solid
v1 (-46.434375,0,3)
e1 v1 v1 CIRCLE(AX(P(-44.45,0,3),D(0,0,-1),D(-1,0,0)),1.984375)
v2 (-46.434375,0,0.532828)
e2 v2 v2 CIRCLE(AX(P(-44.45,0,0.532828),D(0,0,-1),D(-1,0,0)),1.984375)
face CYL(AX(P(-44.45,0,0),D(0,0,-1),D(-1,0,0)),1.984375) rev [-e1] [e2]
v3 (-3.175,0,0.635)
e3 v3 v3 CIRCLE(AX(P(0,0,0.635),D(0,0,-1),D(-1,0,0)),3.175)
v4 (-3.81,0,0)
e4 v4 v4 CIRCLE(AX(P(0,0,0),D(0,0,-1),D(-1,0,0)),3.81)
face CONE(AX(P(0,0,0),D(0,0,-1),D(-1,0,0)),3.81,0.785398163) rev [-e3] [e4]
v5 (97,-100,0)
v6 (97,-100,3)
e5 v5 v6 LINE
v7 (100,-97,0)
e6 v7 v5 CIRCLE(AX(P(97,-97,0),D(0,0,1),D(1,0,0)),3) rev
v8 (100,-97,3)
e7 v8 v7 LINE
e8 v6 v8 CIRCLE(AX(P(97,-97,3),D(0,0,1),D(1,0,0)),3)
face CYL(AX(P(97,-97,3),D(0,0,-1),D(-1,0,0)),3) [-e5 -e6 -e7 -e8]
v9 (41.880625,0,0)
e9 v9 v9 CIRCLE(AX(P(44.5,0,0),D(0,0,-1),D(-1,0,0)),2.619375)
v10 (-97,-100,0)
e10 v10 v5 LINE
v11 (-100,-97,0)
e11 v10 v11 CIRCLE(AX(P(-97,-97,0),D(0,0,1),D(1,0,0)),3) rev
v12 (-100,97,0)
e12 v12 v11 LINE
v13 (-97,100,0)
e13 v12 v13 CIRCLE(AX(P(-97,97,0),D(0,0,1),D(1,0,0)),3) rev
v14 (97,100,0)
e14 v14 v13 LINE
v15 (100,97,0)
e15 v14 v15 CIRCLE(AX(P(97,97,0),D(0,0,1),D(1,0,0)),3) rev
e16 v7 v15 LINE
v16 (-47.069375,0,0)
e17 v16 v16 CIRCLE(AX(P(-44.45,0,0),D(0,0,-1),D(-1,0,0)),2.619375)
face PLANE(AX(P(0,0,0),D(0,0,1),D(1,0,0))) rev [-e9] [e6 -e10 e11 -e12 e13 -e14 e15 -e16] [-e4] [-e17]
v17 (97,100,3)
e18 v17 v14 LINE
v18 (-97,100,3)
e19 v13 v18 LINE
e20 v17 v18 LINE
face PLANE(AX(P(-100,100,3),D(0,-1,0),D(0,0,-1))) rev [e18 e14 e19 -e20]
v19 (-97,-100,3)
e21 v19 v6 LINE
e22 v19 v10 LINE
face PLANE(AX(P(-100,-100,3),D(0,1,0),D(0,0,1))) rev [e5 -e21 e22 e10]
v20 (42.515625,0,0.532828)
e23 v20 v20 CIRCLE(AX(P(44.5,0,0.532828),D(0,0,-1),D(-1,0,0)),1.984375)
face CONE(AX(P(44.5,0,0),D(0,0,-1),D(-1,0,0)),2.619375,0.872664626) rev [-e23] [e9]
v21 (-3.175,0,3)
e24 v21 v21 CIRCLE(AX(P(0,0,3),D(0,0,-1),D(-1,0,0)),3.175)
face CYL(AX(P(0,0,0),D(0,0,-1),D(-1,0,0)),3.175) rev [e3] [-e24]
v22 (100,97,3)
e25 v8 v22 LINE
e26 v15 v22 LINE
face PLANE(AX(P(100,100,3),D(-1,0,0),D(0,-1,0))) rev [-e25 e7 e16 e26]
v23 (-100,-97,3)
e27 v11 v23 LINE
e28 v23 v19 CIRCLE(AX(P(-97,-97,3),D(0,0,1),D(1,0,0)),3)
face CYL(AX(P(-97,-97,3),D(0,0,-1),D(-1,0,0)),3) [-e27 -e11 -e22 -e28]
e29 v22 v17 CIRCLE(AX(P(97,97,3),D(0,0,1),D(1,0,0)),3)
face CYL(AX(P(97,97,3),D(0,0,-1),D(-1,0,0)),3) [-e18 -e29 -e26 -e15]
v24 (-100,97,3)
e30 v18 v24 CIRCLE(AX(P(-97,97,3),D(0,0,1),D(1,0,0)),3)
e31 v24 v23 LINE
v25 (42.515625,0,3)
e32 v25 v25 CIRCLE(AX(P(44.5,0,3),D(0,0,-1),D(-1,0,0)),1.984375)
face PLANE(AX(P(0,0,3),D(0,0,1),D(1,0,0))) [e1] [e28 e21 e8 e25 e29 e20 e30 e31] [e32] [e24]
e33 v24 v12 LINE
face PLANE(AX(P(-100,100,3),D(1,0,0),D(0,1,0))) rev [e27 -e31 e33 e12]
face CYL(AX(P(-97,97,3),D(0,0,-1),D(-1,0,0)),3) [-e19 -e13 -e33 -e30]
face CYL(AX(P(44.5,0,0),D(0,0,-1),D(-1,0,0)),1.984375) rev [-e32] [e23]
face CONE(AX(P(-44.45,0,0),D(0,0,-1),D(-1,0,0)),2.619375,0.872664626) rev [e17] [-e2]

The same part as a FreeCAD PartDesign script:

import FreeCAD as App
import Part
import Sketcher
Q = App.Units.Quantity


def edges_at(feature, points):
    """Names of the edges that pass closest to the given points."""
    edges = feature.Shape.Edges
    near = lambda p: min(range(len(edges)), key=lambda i: edges[i].distToShape(Part.Vertex(*p))[0])
    return sorted({f"Edge{near(p) + 1}" for p in points})


def add_polygon(sketch, points):
    """Adds a closed chain of lines whose ends are joined by coincident constraints."""
    first, n = sketch.GeometryCount, len(points)
    for a, b in zip(points, points[1:] + points[:1]):
        sketch.addGeometry(Part.LineSegment(App.Vector(*a, 0), App.Vector(*b, 0)), False)
    for i in range(n):
        sketch.addConstraint(Sketcher.Constraint("Coincident", first + i, 2, first + (i + 1) % n, 1))

doc = App.newDocument("Part")
body = doc.addObject("PartDesign::Body", "Body")

# Sketch on XY plane
sketch1 = doc.addObject("Sketcher::SketchObject", "Sketch")
body.addObject(sketch1)
sketch1.AttachmentSupport = (doc.XY_Plane, [""])
sketch1.MapMode = "FlatFace"
add_polygon(sketch1, [(-100, 100), (-100, -100), (100, -100), (100, 100)])  # lines 0-3
sketch1.addConstraint(Sketcher.Constraint("Vertical", 0))
sketch1.addConstraint(Sketcher.Constraint("Horizontal", 1))
sketch1.addConstraint(Sketcher.Constraint("Vertical", 2))
sketch1.addConstraint(Sketcher.Constraint("Horizontal", 3))
sketch1.addConstraint(Sketcher.Constraint("Symmetric", 0, 2, 2, 2, -1, 1))
sketch1.addConstraint(Sketcher.Constraint("Equal", 3, 0))
sketch1.addConstraint(Sketcher.Constraint("DistanceX", 1, 1, 1, 2, Q("200 mm")))
pad1 = doc.addObject("PartDesign::Pad", "Pad")
body.addObject(pad1)
pad1.Profile = sketch1
pad1.Length = 3
doc.recompute()

fillet = doc.addObject("PartDesign::Fillet", "Fillet")
body.addObject(fillet)
fillet.Base = (pad1, edges_at(pad1, [
    (100, -100, 1.5),
    (-100, -100, 1.5),
    (-100, 100, 1.5),
    (100, 100, 1.5),
]))
fillet.Radius = 3

# Sketch on YZ plane
sketch2 = doc.addObject("Sketcher::SketchObject", "Sketch001")
body.addObject(sketch2)
sketch2.AttachmentSupport = (doc.YZ_Plane, [""])
sketch2.MapMode = "FlatFace"
add_polygon(sketch2, [(0, 3), (0, 0), (3.8, 0), (3.2, 0.6), (3.2, 3)])  # lines 0-4
sketch2.addConstraint(Sketcher.Constraint("Vertical", 0))
sketch2.addConstraint(Sketcher.Constraint("Horizontal", 1))
sketch2.addConstraint(Sketcher.Constraint("Vertical", 3))
sketch2.addConstraint(Sketcher.Constraint("Horizontal", 4))
sketch2.addConstraint(Sketcher.Constraint("Coincident", 0, 2, -1, 1))
sketch2.addConstraint(Sketcher.Constraint("Angle", 2, Q("135 deg")))
sketch2.addConstraint(Sketcher.Constraint("DistanceX", 1, 1, 1, 2, Q("0.15 in")))
sketch2.addConstraint(Sketcher.Constraint("DistanceX", 4, 2, 4, 1, Q("0.125 in")))
sketch2.addConstraint(Sketcher.Constraint("DistanceY", 0, 2, 0, 1, Q("3 mm")))
groove = doc.addObject("PartDesign::Groove", "Groove")
body.addObject(groove)
groove.Profile = sketch2
groove.ReferenceAxis = (sketch2, ["V_Axis"])
groove.Angle = 360

# Sketch on XY plane
sketch3 = doc.addObject("Sketcher::SketchObject", "Sketch002")
body.addObject(sketch3)
sketch3.AttachmentSupport = (doc.XY_Plane, [""])
sketch3.MapMode = "FlatFace"
sketch3.addGeometry(Part.Circle(App.Vector(44.5, 0, 0), App.Vector(0, 0, 1), 2), False)
sketch3.addGeometry(Part.Circle(App.Vector(-44.5, 0, 0), App.Vector(0, 0, 1), 2), False)
sketch3.addConstraint(Sketcher.Constraint("Equal", 0, 1))
sketch3.addConstraint(Sketcher.Constraint("PointOnObject", 0, 3, -1))
sketch3.addConstraint(Sketcher.Constraint("PointOnObject", 1, 3, -1))
sketch3.addConstraint(Sketcher.Constraint("Diameter", 0, Q("0.15625 in")))
sketch3.addConstraint(Sketcher.Constraint("DistanceX", 1, 3, -1, 1, Q("1.75 in")))
sketch3.addConstraint(Sketcher.Constraint("DistanceX", -1, 1, 0, 3, Q("44.5 mm")))
doc.recompute()
hole = doc.addObject("PartDesign::Hole", "Hole")
body.addObject(hole)
hole.Profile = sketch3
hole.ThreadType = "None"
hole.Diameter = Q("0.15625 in")
hole.DepthType = "ThroughAll"
hole.HoleCutType = "Countersink"
hole.HoleCutDiameter = 5.23875
hole.HoleCutCountersinkAngle = 100
hole.Reversed = True

doc.recompute()
